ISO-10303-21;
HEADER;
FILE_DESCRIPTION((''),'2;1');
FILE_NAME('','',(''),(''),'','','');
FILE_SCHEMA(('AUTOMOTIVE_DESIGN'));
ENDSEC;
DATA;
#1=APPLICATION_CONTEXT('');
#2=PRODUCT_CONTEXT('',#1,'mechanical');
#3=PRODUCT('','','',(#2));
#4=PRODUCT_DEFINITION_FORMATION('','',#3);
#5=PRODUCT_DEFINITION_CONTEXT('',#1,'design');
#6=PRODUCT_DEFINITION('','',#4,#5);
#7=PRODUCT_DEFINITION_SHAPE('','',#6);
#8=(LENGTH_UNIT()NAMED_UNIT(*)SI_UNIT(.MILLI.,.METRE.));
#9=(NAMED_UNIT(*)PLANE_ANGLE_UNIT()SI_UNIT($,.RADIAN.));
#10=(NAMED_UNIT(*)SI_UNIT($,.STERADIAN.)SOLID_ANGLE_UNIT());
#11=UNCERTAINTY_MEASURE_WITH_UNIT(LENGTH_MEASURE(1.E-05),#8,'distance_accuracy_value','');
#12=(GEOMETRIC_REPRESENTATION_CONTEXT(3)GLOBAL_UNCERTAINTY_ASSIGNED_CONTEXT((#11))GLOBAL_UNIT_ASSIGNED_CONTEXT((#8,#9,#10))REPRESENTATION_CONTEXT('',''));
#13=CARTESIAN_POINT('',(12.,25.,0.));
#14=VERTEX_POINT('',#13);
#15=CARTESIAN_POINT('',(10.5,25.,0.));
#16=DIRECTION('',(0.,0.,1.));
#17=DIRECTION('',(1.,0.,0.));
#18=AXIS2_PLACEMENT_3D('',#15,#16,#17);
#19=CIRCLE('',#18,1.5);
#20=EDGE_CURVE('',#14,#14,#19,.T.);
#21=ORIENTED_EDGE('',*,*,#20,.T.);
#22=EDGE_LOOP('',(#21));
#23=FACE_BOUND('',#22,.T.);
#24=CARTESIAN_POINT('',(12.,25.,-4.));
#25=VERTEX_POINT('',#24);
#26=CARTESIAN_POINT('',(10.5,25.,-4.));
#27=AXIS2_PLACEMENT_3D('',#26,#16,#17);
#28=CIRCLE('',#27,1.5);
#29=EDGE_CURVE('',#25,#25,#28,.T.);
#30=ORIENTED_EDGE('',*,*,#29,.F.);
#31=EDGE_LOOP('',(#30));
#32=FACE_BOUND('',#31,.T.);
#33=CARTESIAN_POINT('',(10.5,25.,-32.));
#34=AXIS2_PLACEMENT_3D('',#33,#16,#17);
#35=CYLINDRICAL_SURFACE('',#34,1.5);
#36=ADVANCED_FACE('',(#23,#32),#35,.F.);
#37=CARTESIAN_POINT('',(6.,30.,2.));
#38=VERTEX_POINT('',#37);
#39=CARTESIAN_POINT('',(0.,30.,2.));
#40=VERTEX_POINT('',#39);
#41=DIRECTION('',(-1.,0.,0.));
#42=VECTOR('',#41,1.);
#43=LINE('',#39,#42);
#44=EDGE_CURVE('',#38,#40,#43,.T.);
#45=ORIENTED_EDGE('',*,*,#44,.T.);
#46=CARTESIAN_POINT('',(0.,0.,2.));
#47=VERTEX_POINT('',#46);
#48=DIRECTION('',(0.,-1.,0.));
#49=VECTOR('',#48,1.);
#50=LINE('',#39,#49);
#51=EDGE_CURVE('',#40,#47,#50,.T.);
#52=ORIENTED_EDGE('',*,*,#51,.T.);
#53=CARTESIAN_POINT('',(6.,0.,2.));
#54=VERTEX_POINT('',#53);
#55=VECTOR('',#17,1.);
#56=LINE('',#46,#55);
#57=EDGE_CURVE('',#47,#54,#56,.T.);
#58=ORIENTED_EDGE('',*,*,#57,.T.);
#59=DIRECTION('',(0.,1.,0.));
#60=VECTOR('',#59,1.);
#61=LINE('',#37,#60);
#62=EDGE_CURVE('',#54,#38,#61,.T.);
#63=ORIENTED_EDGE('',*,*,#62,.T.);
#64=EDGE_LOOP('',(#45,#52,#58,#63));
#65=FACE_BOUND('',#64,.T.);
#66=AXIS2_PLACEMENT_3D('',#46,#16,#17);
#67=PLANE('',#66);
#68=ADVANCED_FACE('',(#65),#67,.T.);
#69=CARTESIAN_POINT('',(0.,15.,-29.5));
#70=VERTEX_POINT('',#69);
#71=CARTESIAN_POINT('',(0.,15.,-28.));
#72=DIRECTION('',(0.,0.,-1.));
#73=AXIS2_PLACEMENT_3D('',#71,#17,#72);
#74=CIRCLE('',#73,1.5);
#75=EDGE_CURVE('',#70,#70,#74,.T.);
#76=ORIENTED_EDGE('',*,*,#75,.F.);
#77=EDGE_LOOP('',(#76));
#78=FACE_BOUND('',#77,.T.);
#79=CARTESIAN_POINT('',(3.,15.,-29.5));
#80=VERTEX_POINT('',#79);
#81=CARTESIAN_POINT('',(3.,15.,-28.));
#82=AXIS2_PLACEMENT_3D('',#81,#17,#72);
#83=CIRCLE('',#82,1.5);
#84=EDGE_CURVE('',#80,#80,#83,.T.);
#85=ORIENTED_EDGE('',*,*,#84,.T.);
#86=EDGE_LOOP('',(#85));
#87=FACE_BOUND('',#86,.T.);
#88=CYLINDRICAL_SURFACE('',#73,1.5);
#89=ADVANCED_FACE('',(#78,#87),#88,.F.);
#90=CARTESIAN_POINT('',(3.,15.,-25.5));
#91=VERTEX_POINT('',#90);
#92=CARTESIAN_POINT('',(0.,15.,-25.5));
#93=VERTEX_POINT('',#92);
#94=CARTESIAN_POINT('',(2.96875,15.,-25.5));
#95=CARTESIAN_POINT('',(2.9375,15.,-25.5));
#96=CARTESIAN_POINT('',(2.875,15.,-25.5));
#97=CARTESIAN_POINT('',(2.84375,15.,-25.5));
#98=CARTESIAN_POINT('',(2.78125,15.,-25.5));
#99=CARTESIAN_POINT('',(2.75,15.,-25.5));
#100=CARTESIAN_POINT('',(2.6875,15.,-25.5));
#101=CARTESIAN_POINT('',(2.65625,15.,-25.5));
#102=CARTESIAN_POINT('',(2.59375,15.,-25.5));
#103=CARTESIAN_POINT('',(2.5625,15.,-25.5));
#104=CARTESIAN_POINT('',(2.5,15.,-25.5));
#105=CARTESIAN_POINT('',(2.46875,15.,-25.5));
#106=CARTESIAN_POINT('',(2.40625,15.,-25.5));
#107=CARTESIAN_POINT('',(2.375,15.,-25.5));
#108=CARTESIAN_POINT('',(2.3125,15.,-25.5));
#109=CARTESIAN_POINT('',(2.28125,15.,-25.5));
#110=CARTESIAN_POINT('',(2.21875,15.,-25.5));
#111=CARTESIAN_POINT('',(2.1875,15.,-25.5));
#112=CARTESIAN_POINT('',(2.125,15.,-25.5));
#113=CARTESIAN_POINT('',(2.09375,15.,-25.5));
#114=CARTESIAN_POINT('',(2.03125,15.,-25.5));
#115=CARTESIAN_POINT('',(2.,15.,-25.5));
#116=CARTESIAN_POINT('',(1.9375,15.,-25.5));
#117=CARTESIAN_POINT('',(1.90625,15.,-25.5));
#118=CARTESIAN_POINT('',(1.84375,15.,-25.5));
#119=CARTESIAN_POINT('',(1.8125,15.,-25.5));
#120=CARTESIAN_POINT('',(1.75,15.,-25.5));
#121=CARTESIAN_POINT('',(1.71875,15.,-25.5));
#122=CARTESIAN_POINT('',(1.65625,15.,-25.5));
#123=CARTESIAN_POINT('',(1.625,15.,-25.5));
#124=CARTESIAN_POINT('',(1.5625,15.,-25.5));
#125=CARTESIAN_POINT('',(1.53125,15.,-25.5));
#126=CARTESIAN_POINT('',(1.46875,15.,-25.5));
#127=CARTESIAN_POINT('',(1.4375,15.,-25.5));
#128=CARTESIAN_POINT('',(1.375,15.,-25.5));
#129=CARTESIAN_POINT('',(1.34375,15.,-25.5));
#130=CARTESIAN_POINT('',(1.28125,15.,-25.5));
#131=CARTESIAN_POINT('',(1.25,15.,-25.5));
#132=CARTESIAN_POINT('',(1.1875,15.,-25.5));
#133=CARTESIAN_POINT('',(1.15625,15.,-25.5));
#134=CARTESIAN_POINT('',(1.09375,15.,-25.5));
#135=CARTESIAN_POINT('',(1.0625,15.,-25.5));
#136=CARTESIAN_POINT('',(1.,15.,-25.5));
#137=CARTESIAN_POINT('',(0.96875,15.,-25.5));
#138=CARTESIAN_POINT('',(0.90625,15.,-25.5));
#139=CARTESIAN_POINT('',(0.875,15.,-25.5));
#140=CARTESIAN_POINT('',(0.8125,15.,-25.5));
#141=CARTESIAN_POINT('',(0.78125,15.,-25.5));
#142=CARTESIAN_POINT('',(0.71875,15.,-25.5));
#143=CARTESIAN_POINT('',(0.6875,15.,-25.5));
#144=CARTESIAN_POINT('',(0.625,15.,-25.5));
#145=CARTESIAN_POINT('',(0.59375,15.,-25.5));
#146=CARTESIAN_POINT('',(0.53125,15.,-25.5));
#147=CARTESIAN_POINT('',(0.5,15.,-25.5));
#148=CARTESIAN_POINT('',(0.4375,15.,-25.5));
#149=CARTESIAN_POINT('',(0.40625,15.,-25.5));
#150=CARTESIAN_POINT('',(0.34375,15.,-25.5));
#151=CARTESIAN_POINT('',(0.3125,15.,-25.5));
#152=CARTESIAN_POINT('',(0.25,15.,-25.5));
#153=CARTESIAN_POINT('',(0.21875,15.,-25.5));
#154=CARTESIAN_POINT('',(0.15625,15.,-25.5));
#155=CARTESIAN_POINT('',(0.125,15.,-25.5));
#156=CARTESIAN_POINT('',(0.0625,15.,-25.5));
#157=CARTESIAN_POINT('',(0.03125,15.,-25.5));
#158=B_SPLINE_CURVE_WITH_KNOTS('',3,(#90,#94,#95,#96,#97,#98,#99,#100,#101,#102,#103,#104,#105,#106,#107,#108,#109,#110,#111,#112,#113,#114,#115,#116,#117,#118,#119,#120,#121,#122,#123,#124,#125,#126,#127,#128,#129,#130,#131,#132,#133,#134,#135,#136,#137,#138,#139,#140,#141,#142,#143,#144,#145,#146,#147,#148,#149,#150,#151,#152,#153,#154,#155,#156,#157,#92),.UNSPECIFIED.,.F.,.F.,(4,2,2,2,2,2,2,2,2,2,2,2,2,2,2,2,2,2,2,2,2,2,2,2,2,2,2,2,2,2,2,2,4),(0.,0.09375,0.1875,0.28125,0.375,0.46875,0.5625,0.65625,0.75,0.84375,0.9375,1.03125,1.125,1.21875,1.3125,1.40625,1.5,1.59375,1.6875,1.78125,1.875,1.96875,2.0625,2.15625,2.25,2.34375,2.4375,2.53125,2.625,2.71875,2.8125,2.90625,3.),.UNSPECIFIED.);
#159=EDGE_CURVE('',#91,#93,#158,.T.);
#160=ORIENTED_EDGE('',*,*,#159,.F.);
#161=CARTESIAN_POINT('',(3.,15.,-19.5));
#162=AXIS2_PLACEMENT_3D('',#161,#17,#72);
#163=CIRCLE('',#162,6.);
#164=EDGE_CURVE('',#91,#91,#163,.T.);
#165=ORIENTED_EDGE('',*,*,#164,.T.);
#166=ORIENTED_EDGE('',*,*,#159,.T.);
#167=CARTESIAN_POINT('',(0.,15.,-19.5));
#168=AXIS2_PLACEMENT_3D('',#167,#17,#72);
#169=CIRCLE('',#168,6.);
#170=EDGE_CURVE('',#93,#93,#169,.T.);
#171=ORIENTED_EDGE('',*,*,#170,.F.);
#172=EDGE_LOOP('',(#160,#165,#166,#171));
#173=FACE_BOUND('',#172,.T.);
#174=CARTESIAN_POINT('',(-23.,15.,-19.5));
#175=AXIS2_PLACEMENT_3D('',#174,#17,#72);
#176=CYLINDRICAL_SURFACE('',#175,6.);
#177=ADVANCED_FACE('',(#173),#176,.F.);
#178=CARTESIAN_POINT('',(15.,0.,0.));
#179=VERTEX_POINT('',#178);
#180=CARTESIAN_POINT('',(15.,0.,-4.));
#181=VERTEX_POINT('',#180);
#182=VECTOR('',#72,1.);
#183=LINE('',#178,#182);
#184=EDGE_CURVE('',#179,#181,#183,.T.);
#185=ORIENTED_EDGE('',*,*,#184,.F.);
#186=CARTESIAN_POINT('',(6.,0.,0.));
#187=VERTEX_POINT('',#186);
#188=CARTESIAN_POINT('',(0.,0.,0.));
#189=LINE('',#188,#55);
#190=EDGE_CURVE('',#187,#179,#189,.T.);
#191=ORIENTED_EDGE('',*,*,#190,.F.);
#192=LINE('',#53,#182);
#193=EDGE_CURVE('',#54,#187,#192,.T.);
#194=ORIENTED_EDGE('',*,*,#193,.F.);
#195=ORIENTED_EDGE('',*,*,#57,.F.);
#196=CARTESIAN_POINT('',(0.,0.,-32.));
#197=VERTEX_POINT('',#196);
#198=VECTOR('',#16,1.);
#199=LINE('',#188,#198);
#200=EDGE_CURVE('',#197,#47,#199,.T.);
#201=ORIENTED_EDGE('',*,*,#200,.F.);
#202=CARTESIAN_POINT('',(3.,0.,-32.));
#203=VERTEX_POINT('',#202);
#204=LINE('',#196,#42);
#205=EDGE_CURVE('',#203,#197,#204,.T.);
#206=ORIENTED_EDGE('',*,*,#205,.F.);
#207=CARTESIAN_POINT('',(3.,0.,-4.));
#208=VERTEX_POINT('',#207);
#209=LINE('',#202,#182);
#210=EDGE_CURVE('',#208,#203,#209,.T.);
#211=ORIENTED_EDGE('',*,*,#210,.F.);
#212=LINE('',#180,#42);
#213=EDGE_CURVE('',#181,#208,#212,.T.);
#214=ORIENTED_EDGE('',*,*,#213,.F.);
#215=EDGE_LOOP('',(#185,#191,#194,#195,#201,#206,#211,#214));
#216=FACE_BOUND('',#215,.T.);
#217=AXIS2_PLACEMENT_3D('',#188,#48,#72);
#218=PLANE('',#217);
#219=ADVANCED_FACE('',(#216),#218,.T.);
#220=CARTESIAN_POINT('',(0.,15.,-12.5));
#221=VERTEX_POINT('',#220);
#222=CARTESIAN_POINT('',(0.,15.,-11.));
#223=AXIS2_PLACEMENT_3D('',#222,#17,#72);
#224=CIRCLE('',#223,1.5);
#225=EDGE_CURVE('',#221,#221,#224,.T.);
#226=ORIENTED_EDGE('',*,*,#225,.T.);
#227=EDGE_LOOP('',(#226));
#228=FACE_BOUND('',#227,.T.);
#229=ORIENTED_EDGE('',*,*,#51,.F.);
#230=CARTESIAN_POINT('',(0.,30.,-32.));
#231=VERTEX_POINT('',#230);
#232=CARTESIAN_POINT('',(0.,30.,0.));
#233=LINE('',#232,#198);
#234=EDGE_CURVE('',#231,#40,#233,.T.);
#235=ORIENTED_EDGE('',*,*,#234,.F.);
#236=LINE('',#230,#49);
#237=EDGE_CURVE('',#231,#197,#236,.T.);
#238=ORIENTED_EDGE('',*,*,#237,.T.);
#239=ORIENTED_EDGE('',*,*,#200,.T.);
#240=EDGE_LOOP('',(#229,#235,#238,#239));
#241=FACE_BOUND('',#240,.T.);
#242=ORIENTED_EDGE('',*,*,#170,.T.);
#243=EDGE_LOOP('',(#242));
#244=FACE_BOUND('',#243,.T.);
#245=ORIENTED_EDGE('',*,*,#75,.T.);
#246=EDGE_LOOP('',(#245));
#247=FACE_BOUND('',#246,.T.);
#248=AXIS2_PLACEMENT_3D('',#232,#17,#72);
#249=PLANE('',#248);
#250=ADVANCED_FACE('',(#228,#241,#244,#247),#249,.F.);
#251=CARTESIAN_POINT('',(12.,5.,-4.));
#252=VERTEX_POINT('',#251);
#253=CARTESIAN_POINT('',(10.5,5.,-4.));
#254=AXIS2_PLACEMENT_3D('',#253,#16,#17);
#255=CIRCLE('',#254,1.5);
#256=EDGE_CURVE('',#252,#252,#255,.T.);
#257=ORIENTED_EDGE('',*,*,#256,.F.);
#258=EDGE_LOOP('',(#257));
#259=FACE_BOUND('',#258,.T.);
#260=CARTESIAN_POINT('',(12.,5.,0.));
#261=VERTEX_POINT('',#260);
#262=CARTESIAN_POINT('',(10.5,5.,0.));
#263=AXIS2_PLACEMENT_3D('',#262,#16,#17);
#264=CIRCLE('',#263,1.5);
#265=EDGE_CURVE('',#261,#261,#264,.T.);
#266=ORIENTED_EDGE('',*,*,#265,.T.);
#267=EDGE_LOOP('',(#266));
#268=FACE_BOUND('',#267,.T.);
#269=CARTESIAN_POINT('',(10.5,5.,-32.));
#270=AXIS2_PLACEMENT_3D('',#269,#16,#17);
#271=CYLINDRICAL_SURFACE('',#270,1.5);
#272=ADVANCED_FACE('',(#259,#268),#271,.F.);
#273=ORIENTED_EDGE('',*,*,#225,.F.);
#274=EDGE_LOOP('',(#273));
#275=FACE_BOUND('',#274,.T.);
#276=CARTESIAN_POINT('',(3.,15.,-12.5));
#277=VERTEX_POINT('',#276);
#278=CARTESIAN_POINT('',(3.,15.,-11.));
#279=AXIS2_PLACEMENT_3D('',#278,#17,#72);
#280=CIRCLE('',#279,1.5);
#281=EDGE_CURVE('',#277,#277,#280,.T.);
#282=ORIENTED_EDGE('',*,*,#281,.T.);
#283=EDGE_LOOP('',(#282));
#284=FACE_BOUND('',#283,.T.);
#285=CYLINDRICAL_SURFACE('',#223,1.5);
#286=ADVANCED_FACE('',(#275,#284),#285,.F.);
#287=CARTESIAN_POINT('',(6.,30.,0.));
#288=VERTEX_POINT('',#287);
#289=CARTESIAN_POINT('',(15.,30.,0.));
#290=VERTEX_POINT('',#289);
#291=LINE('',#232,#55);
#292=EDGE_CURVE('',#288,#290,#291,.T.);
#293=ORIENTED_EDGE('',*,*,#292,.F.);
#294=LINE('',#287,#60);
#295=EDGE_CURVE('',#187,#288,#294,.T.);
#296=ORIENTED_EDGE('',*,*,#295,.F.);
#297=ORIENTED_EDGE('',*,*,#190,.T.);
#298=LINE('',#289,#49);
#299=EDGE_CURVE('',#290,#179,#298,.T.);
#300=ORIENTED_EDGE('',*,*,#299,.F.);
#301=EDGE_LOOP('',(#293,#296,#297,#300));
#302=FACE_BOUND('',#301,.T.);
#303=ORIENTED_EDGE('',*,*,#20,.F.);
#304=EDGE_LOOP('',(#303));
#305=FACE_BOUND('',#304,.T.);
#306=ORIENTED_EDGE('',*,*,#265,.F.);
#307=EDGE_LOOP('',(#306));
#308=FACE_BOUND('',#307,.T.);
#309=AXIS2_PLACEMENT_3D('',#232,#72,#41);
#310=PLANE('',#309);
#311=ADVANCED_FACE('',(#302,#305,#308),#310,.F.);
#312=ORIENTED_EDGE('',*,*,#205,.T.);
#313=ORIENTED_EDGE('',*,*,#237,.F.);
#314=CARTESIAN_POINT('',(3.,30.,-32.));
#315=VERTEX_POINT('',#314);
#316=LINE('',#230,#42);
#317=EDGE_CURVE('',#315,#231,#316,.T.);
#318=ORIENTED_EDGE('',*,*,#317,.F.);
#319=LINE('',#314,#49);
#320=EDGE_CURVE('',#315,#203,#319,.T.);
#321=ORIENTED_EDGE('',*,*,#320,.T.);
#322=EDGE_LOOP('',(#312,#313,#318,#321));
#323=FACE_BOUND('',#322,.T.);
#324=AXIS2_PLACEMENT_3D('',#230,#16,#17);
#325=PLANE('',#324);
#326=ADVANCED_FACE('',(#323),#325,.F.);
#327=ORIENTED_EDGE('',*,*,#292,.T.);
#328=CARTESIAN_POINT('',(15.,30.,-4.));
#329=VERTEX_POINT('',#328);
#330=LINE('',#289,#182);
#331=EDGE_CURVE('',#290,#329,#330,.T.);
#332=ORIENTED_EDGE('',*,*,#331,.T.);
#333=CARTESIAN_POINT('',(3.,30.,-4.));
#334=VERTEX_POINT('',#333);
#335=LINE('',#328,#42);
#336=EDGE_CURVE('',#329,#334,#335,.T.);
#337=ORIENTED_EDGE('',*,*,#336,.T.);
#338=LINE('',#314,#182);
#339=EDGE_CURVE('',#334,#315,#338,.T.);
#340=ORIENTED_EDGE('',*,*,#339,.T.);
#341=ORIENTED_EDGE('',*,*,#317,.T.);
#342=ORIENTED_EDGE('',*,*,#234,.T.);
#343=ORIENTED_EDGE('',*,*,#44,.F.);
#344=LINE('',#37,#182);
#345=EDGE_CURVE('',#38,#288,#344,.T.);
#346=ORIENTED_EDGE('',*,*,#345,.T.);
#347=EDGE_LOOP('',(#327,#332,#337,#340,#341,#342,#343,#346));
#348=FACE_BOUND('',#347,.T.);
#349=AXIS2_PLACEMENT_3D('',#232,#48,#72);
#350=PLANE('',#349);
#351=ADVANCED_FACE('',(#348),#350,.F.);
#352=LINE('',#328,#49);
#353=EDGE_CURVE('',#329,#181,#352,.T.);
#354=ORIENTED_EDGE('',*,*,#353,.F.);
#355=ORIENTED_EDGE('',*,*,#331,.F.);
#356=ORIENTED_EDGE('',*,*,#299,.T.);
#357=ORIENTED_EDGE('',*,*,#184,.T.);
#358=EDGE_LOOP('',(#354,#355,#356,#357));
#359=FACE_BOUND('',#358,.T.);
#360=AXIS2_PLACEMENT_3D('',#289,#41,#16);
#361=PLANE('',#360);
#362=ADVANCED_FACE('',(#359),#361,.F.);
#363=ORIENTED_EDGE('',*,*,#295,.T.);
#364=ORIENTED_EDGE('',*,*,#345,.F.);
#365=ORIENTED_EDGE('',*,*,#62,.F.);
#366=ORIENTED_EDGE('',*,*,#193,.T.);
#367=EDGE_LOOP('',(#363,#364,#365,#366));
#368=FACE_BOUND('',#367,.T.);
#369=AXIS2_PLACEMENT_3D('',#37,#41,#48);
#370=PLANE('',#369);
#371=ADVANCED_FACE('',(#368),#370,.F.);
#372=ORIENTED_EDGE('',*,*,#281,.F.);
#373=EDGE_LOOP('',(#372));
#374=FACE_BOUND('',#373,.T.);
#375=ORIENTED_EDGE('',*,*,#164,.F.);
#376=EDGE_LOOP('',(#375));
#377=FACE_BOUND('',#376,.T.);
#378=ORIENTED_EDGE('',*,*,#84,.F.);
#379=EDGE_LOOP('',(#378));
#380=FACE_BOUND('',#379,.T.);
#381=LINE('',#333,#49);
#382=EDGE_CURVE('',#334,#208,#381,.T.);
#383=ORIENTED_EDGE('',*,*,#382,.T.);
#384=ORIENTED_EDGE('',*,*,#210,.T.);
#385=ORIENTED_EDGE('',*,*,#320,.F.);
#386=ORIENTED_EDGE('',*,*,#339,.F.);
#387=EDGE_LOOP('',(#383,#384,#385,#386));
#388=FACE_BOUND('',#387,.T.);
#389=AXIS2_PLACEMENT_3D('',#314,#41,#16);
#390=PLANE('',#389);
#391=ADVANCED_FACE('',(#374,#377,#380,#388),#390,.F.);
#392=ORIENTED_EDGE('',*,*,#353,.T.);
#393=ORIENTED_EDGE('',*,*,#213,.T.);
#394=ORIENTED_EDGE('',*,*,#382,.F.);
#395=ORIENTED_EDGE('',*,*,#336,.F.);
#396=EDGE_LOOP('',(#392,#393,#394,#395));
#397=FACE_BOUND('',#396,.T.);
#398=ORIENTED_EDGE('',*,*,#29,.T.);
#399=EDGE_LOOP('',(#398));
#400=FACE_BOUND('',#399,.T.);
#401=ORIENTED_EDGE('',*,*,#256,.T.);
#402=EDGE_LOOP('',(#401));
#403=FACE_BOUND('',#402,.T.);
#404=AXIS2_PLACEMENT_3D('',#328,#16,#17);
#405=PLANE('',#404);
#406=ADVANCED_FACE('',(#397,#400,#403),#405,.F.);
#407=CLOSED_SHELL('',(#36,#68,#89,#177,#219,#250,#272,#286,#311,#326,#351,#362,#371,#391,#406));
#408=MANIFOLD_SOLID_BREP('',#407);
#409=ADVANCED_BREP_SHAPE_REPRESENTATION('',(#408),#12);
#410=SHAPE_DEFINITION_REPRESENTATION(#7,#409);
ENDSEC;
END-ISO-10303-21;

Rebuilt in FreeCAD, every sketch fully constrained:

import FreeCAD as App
import Part
import Sketcher
from FreeCAD import Vector

doc = App.newDocument("Part")
body = doc.addObject("PartDesign::Body", "Body")

sketch1 = body.newObject("Sketcher::SketchObject", "Sketch")
sketch1.AttachmentSupport = (doc.getObject("XZ_Plane"), [""])
sketch1.MapMode = "FlatFace"
sketch1.addGeometry(Part.LineSegment(Vector(0, 0, 0), Vector(15, 0, 0)), False)
sketch1.addGeometry(Part.LineSegment(Vector(15, 0, 0), Vector(15, -4, 0)), False)
sketch1.addGeometry(Part.LineSegment(Vector(15, -4, 0), Vector(3, -4, 0)), False)
sketch1.addGeometry(Part.LineSegment(Vector(3, -4, 0), Vector(3, -32, 0)), False)
sketch1.addGeometry(Part.LineSegment(Vector(3, -32, 0), Vector(0, -32, 0)), False)
sketch1.addGeometry(Part.LineSegment(Vector(0, -32, 0), Vector(0, 0, 0)), False)
sketch1.addConstraint(Sketcher.Constraint("Coincident", 0, 2, 1, 1))
sketch1.addConstraint(Sketcher.Constraint("Coincident", 1, 2, 2, 1))
sketch1.addConstraint(Sketcher.Constraint("Coincident", 2, 2, 3, 1))
sketch1.addConstraint(Sketcher.Constraint("Coincident", 3, 2, 4, 1))
sketch1.addConstraint(Sketcher.Constraint("Coincident", 4, 2, 5, 1))
sketch1.addConstraint(Sketcher.Constraint("Coincident", 5, 2, 0, 1))
sketch1.addConstraint(Sketcher.Constraint("Horizontal", 0))
sketch1.addConstraint(Sketcher.Constraint("Vertical", 1))
sketch1.addConstraint(Sketcher.Constraint("Horizontal", 2))
sketch1.addConstraint(Sketcher.Constraint("Vertical", 3))
sketch1.addConstraint(Sketcher.Constraint("Horizontal", 4))
sketch1.addConstraint(Sketcher.Constraint("Vertical", 5))
sketch1.addConstraint(Sketcher.Constraint("Coincident", 5, 2, -1, 1))
sketch1.addConstraint(Sketcher.Constraint("DistanceX", 0, 1, 0, 2, 15.0))
sketch1.addConstraint(Sketcher.Constraint("DistanceX", 2, 2, 2, 1, 12.0))
sketch1.addConstraint(Sketcher.Constraint("DistanceY", 1, 2, 1, 1, 4.0))
sketch1.addConstraint(Sketcher.Constraint("DistanceY", 3, 2, 3, 1, 28.0))
pad1 = body.newObject("PartDesign::Pad", "Pad")
pad1.Profile = sketch1
pad1.Length = 30
pad1.Reversed = True

sketch2 = body.newObject("Sketcher::SketchObject", "Sketch001")
sketch2.AttachmentSupport = (doc.getObject("YZ_Plane"), [""])
sketch2.MapMode = "FlatFace"
sketch2.AttachmentOffset = App.Placement(Vector(0, 0, 3), App.Rotation())
sketch2.addGeometry(Part.Circle(Vector(15, -20, 0), Vector(0, 0, 1), 6), False)
sketch2.addConstraint(Sketcher.Constraint("Diameter", 0, 12.0))
sketch2.addConstraint(Sketcher.Constraint("DistanceX", -1, 1, 0, 3, 15.0))
sketch2.addConstraint(Sketcher.Constraint("DistanceY", 0, 3, -1, 1, 19.5))
pocket1 = body.newObject("PartDesign::Pocket", "Pocket")
pocket1.Profile = sketch2
pocket1.Length = 26

sketch3 = body.newObject("Sketcher::SketchObject", "Sketch002")
sketch3.AttachmentSupport = (doc.getObject("XY_Plane"), [""])
sketch3.MapMode = "FlatFace"
sketch3.addGeometry(Part.LineSegment(Vector(0, 30, 0), Vector(0, 0, 0)), False)
sketch3.addGeometry(Part.LineSegment(Vector(0, 0, 0), Vector(6, 0, 0)), False)
sketch3.addGeometry(Part.LineSegment(Vector(6, 0, 0), Vector(6, 30, 0)), False)
sketch3.addGeometry(Part.LineSegment(Vector(6, 30, 0), Vector(0, 30, 0)), False)
sketch3.addConstraint(Sketcher.Constraint("Coincident", 0, 2, 1, 1))
sketch3.addConstraint(Sketcher.Constraint("Coincident", 1, 2, 2, 1))
sketch3.addConstraint(Sketcher.Constraint("Coincident", 2, 2, 3, 1))
sketch3.addConstraint(Sketcher.Constraint("Coincident", 3, 2, 0, 1))
sketch3.addConstraint(Sketcher.Constraint("Vertical", 0))
sketch3.addConstraint(Sketcher.Constraint("Horizontal", 1))
sketch3.addConstraint(Sketcher.Constraint("Vertical", 2))
sketch3.addConstraint(Sketcher.Constraint("Horizontal", 3))
sketch3.addConstraint(Sketcher.Constraint("Coincident", 0, 2, -1, 1))
sketch3.addConstraint(Sketcher.Constraint("DistanceX", 1, 1, 1, 2, 6.0))
sketch3.addConstraint(Sketcher.Constraint("DistanceY", 0, 2, 0, 1, 30.0))
pad2 = body.newObject("PartDesign::Pad", "Pad001")
pad2.Profile = sketch3
pad2.Length = 2

sketch4 = body.newObject("Sketcher::SketchObject", "Sketch003")
sketch4.AttachmentSupport = (doc.getObject("YZ_Plane"), [""])
sketch4.MapMode = "FlatFace"
sketch4.AttachmentOffset = App.Placement(Vector(0, 0, 3), App.Rotation())
sketch4.addGeometry(Part.Circle(Vector(15, -28, 0), Vector(0, 0, 1), 1.5), False)
sketch4.addGeometry(Part.Circle(Vector(15, -11, 0), Vector(0, 0, 1), 1.5), False)
sketch4.addConstraint(Sketcher.Constraint("Equal", 0, 1))
sketch4.addConstraint(Sketcher.Constraint("Vertical", 0, 3, 1, 3))
sketch4.addConstraint(Sketcher.Constraint("Diameter", 0, 3.0))
sketch4.addConstraint(Sketcher.Constraint("DistanceX", -1, 1, 0, 3, 15.0))
sketch4.addConstraint(Sketcher.Constraint("DistanceY", 0, 3, -1, 1, 28.0))
sketch4.addConstraint(Sketcher.Constraint("DistanceY", 1, 3, -1, 1, 11.0))
pocket2 = body.newObject("PartDesign::Pocket", "Pocket001")
pocket2.Profile = sketch4
pocket2.Type = "ThroughAll"

sketch5 = body.newObject("Sketcher::SketchObject", "Sketch004")
sketch5.AttachmentSupport = (doc.getObject("XY_Plane"), [""])
sketch5.MapMode = "FlatFace"
sketch5.addGeometry(Part.Circle(Vector(10.5, 25, 0), Vector(0, 0, 1), 1.5), False)
sketch5.addGeometry(Part.Circle(Vector(10.5, 5, 0), Vector(0, 0, 1), 1.5), False)
sketch5.addConstraint(Sketcher.Constraint("Equal", 0, 1))
sketch5.addConstraint(Sketcher.Constraint("Vertical", 0, 3, 1, 3))
sketch5.addConstraint(Sketcher.Constraint("Diameter", 0, 3.0))
sketch5.addConstraint(Sketcher.Constraint("DistanceY", -1, 1, 0, 3, 25.0))
sketch5.addConstraint(Sketcher.Constraint("DistanceY", -1, 1, 1, 3, 5.0))
sketch5.addConstraint(Sketcher.Constraint("DistanceX", -1, 1, 0, 3, 10.5))
pocket3 = body.newObject("PartDesign::Pocket", "Pocket002")
pocket3.Profile = sketch5
pocket3.Type = "ThroughAll"

doc.recompute()
